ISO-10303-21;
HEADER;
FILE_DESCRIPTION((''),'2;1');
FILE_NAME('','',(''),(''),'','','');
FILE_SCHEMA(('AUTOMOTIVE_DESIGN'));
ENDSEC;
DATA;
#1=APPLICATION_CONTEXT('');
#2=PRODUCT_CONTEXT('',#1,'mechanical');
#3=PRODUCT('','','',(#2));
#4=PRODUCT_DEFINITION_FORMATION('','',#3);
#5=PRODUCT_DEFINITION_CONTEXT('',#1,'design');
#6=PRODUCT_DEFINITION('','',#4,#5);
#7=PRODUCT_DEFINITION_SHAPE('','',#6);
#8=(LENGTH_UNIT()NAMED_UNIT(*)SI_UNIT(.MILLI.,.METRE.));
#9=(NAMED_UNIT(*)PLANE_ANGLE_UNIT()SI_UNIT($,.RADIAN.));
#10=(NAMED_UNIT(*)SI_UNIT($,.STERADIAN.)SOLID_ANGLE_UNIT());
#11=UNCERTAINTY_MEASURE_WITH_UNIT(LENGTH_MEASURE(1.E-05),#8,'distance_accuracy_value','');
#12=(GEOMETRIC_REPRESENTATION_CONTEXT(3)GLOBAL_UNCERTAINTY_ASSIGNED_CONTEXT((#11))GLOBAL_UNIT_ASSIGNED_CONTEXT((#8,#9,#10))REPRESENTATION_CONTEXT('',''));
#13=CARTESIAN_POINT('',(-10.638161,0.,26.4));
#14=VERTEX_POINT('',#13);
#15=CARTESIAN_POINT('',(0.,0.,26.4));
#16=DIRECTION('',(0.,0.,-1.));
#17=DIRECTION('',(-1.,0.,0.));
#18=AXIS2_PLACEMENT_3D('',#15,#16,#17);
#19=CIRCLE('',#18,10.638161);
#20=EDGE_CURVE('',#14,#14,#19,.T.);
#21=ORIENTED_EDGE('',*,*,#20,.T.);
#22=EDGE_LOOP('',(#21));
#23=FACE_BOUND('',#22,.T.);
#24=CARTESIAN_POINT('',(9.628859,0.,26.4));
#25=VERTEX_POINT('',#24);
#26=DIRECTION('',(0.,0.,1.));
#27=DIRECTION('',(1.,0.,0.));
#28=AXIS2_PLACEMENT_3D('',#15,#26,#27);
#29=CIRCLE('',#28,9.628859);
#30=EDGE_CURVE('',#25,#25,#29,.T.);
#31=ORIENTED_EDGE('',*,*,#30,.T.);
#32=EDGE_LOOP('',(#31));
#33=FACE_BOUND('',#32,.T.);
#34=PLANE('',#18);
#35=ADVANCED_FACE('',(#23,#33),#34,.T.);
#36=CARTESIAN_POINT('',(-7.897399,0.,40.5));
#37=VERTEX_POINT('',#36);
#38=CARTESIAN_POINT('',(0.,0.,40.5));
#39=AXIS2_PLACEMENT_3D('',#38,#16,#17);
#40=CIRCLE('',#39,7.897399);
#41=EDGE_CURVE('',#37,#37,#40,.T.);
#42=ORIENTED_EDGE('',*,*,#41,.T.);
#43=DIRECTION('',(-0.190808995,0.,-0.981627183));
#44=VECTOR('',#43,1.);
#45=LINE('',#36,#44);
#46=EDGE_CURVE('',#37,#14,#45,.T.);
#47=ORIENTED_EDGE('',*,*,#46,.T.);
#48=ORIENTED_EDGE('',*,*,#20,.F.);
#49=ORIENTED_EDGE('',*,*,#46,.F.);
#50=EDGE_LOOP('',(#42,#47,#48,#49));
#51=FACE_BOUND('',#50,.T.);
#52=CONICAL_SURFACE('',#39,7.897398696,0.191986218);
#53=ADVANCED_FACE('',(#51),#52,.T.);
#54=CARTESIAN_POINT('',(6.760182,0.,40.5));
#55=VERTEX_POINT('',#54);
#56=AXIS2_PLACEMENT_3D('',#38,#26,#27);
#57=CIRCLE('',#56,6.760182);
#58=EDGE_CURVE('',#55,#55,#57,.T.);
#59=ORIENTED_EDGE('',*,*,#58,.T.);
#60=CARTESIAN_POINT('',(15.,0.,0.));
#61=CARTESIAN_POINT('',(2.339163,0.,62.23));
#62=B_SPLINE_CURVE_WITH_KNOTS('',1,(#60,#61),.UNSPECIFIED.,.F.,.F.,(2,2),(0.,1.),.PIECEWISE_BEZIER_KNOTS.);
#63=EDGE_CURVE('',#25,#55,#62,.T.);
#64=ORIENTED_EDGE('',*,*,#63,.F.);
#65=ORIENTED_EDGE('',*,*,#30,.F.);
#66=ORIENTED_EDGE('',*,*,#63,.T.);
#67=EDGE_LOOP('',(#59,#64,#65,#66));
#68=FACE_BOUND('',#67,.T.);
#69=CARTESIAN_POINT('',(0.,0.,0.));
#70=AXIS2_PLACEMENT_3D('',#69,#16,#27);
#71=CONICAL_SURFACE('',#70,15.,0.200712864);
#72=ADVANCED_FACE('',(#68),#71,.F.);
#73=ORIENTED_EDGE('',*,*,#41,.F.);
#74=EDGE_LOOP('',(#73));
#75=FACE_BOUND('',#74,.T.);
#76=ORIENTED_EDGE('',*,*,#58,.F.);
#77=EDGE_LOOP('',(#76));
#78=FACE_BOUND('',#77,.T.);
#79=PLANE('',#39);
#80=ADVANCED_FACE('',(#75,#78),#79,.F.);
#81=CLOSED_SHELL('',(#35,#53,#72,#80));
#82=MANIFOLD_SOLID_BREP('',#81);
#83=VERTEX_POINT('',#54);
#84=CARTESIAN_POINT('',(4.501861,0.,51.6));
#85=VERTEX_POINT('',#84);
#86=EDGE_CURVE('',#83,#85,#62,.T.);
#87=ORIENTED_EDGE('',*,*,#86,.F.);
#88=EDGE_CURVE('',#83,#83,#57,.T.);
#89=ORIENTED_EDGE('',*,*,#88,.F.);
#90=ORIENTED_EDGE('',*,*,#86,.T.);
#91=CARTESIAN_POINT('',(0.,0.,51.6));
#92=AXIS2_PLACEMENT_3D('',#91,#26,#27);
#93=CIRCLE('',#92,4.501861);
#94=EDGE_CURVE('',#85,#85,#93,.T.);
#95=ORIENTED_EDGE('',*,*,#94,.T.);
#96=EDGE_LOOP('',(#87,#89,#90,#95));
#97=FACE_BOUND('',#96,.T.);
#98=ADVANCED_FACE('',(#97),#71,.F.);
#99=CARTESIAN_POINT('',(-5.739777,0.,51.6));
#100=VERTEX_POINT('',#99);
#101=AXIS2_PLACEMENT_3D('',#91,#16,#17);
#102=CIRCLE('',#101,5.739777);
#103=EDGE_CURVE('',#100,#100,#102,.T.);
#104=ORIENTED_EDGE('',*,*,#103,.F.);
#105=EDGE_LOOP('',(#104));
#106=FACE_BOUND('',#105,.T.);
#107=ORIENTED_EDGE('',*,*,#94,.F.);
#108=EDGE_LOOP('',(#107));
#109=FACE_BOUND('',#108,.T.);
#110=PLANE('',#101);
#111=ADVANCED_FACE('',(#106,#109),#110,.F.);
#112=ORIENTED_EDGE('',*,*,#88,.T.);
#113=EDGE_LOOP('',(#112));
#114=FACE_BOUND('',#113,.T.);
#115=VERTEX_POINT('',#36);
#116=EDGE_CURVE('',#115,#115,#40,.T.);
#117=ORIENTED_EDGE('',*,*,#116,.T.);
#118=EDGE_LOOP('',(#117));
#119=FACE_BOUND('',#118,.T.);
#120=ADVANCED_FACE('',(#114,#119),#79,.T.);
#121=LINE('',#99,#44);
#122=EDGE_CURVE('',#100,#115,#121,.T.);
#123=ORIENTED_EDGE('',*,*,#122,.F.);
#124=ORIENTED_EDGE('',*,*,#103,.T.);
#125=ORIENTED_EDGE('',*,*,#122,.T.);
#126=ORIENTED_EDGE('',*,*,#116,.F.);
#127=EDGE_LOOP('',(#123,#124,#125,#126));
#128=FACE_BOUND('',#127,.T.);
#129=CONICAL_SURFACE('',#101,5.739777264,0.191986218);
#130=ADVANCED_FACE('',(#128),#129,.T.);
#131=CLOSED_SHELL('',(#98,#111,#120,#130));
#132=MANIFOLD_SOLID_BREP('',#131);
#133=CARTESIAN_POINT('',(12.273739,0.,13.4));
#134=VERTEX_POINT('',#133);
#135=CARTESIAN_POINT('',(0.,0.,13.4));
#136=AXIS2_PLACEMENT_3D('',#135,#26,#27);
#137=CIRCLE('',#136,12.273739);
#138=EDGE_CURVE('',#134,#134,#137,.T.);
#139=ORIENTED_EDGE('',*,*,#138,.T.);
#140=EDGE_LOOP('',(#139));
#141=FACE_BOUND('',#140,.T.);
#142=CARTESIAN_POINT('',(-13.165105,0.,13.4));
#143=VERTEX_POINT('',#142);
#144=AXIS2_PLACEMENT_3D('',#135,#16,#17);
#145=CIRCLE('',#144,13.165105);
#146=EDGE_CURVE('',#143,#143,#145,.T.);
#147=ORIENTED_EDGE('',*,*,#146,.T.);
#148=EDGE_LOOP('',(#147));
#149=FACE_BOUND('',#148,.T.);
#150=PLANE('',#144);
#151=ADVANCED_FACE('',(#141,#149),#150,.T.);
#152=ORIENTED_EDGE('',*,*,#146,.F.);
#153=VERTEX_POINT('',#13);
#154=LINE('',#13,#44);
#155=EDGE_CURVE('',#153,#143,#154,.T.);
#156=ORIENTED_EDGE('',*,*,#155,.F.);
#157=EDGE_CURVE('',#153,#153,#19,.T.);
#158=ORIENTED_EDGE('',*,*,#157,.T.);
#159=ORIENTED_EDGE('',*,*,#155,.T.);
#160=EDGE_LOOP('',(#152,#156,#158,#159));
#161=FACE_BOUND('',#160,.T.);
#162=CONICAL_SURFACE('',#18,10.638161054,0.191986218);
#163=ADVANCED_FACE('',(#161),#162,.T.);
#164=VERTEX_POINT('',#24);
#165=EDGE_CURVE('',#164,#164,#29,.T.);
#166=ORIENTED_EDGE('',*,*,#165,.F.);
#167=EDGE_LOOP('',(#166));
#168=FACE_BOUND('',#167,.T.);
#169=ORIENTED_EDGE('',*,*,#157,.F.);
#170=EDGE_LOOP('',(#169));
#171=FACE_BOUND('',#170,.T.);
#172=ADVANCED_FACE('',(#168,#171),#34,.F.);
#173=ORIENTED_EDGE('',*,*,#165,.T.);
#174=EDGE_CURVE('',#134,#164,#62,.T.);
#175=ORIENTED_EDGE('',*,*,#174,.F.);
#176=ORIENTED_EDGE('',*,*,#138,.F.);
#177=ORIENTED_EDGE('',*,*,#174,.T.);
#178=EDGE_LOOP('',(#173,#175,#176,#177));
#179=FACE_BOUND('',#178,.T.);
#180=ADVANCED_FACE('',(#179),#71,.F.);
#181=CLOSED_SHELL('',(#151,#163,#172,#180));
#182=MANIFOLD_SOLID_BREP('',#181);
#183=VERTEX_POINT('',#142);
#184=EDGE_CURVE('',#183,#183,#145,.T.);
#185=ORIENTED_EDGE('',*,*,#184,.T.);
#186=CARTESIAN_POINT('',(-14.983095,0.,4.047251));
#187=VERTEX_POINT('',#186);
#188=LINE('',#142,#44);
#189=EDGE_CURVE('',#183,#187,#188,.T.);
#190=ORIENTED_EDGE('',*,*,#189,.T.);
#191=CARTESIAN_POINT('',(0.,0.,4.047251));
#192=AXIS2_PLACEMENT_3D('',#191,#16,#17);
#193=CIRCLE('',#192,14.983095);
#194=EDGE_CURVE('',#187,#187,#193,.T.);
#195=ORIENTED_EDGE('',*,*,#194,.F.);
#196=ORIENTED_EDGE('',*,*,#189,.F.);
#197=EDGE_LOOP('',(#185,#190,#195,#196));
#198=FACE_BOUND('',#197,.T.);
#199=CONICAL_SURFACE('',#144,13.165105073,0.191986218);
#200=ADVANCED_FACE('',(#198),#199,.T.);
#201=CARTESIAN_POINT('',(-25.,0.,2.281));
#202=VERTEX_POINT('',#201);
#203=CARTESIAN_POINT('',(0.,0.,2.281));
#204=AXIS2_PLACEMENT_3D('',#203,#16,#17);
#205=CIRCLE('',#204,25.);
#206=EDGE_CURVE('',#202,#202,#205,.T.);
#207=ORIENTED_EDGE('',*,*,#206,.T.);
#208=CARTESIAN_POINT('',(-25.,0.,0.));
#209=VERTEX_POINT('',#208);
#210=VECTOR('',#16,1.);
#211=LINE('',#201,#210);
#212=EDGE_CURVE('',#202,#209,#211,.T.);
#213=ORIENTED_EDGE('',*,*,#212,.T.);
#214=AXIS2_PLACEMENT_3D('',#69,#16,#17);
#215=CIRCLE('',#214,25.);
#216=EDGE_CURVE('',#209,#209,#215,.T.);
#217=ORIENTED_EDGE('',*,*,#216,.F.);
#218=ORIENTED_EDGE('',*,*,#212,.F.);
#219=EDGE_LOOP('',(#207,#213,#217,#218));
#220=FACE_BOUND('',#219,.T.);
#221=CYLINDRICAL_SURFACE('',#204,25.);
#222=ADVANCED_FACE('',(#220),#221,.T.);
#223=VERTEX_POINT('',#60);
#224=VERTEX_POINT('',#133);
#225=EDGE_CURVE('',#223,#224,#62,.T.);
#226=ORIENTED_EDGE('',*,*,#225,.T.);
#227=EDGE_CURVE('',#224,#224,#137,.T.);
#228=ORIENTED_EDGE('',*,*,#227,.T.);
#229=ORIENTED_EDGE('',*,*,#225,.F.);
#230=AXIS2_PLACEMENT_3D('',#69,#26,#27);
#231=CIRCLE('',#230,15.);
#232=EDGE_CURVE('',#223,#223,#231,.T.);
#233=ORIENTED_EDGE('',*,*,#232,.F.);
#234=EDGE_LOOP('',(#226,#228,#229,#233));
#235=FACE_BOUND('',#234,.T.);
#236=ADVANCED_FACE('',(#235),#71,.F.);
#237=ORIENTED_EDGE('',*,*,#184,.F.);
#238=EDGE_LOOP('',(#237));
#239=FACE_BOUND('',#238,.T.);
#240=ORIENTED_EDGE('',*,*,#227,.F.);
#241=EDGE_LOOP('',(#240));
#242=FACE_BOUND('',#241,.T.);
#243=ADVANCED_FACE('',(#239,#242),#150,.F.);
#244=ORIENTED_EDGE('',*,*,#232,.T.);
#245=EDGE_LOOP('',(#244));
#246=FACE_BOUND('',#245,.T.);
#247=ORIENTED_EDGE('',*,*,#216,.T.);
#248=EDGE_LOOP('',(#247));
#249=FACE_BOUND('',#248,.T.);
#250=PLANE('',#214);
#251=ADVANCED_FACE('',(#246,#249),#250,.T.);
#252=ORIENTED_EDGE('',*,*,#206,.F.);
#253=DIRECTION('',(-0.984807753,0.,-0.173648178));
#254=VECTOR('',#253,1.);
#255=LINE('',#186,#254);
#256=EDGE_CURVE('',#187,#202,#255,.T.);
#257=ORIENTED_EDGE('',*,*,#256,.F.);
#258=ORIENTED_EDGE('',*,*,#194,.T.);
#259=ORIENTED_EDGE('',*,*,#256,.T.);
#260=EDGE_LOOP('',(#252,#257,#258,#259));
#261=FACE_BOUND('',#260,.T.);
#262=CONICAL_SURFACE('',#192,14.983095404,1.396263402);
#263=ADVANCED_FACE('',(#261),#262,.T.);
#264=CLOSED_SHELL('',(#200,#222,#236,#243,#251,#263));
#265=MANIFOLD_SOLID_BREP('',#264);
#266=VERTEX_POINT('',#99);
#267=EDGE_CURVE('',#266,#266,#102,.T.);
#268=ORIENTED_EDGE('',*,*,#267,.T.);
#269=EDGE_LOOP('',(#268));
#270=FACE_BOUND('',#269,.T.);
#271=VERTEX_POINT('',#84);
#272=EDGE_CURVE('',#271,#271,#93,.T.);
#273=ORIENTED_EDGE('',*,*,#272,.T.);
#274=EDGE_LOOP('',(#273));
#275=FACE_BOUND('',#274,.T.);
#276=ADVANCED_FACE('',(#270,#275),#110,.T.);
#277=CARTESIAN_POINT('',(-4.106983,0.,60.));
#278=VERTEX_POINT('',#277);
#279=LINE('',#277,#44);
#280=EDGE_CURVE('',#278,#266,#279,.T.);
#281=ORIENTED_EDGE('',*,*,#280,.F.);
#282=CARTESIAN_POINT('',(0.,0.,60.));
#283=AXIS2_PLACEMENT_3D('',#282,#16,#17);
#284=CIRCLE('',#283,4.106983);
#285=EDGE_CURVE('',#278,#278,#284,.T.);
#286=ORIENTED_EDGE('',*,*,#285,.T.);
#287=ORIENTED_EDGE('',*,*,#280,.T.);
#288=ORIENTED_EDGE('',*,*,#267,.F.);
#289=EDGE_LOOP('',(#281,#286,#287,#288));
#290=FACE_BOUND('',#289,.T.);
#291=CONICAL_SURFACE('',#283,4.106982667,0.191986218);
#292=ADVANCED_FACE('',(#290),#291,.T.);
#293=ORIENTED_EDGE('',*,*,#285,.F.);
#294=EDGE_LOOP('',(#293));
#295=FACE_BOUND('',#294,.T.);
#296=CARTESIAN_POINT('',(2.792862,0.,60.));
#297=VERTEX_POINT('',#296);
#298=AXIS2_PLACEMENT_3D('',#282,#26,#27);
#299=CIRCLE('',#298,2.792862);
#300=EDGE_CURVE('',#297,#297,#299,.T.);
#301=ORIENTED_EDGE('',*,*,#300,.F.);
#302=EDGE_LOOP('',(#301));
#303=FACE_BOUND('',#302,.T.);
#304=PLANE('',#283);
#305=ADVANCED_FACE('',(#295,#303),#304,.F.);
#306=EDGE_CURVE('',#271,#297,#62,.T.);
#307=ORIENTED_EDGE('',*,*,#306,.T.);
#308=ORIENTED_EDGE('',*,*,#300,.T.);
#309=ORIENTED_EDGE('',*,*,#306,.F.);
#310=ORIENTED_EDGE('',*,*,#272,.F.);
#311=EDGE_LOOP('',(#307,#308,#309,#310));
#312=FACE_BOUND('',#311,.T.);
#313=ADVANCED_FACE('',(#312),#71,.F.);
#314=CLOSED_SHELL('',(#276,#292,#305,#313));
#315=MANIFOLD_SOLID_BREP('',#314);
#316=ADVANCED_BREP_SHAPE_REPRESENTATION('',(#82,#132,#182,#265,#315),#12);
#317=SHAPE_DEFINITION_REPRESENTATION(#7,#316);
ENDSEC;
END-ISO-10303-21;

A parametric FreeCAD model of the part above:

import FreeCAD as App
import Part
import Sketcher
from FreeCAD import Vector
Q = App.Units.Quantity

doc = App.newDocument("Part")
body = doc.addObject("PartDesign::Body", "Body")

# Sketch on XZ plane
sketch1 = body.newObject("Sketcher::SketchObject", "Sketch")
sketch1.AttachmentSupport = (doc.getObject("XZ_Plane"), [""])
sketch1.MapMode = "FlatFace"
sketch1.addGeometry([
    Part.LineSegment(Vector(-5.7, 51.6, 0), Vector(0, 51.6, 0)),
    Part.LineSegment(Vector(0, 51.6, 0), Vector(0, 60, 0)),
    Part.LineSegment(Vector(0, 60, 0), Vector(-4.1, 60, 0)),
    Part.LineSegment(Vector(-4.1, 60, 0), Vector(-5.7, 51.6, 0)),
], False)
sketch1.addConstraint([
    Sketcher.Constraint("Coincident", 0, 2, 1, 1),
    Sketcher.Constraint("Coincident", 1, 2, 2, 1),
    Sketcher.Constraint("Coincident", 2, 2, 3, 1),
    Sketcher.Constraint("Coincident", 3, 2, 0, 1),
    Sketcher.Constraint("Horizontal", 0),
    Sketcher.Constraint("Vertical", 1),
    Sketcher.Constraint("Horizontal", 2),
    Sketcher.Constraint("PointOnObject", 0, 2, -2),
    Sketcher.Constraint("Angle", 3, Q("-101 deg")),
    Sketcher.Constraint("DistanceY", 1, 1, 1, 2, 8.4),
    Sketcher.Constraint("DistanceY", -1, 1, 1, 2, 60.0),
    Sketcher.Constraint("DistanceX", 0, 1, 0, 2, 5.739777),
])
revolution = body.newObject("PartDesign::Revolution", "Revolution")
revolution.Profile = sketch1
revolution.ReferenceAxis = (sketch1, ["V_Axis"])
revolution.Angle = 360
body2 = doc.addObject("PartDesign::Body", "Body001")

# Sketch on XZ plane
sketch2 = body2.newObject("Sketcher::SketchObject", "Sketch001")
sketch2.AttachmentSupport = (doc.getObject("XZ_Plane001"), [""])
sketch2.MapMode = "FlatFace"
sketch2.addGeometry([
    Part.LineSegment(Vector(-8, 40, 0), Vector(0, 40, 0)),
    Part.LineSegment(Vector(0, 40, 0), Vector(0, 52, 0)),
    Part.LineSegment(Vector(0, 52, 0), Vector(-6, 52, 0)),
    Part.LineSegment(Vector(-6, 52, 0), Vector(-8, 40, 0)),
], False)
sketch2.addConstraint([
    Sketcher.Constraint("Coincident", 0, 2, 1, 1),
    Sketcher.Constraint("Coincident", 1, 2, 2, 1),
    Sketcher.Constraint("Coincident", 2, 2, 3, 1),
    Sketcher.Constraint("Coincident", 3, 2, 0, 1),
    Sketcher.Constraint("Horizontal", 0),
    Sketcher.Constraint("Vertical", 1),
    Sketcher.Constraint("Horizontal", 2),
    Sketcher.Constraint("PointOnObject", 0, 2, -2),
    Sketcher.Constraint("Angle", 3, Q("-101 deg")),
    Sketcher.Constraint("DistanceY", 1, 1, 1, 2, 11.1),
    Sketcher.Constraint("DistanceY", -1, 1, 0, 2, 40.5),
    Sketcher.Constraint("DistanceX", 0, 1, 0, 2, 7.897399),
])
revolution2 = body2.newObject("PartDesign::Revolution", "Revolution001")
revolution2.Profile = sketch2
revolution2.ReferenceAxis = (sketch2, ["V_Axis"])
revolution2.Angle = 360
body3 = doc.addObject("PartDesign::Body", "Body002")

# Sketch on XZ plane
sketch3 = body3.newObject("Sketcher::SketchObject", "Sketch002")
sketch3.AttachmentSupport = (doc.getObject("XZ_Plane002"), [""])
sketch3.MapMode = "FlatFace"
sketch3.addGeometry([
    Part.LineSegment(Vector(-11, 26, 0), Vector(0, 26, 0)),
    Part.LineSegment(Vector(0, 26, 0), Vector(0, 40, 0)),
    Part.LineSegment(Vector(0, 40, 0), Vector(-8, 40, 0)),
    Part.LineSegment(Vector(-8, 40, 0), Vector(-11, 26, 0)),
], False)
sketch3.addConstraint([
    Sketcher.Constraint("Coincident", 0, 2, 1, 1),
    Sketcher.Constraint("Coincident", 1, 2, 2, 1),
    Sketcher.Constraint("Coincident", 2, 2, 3, 1),
    Sketcher.Constraint("Coincident", 3, 2, 0, 1),
    Sketcher.Constraint("Horizontal", 0),
    Sketcher.Constraint("Vertical", 1),
    Sketcher.Constraint("Horizontal", 2),
    Sketcher.Constraint("PointOnObject", 0, 2, -2),
    Sketcher.Constraint("Angle", 3, Q("-101 deg")),
    Sketcher.Constraint("DistanceY", 1, 1, 1, 2, 14.1),
    Sketcher.Constraint("DistanceY", -1, 1, 0, 2, 26.4),
    Sketcher.Constraint("DistanceX", 2, 2, 2, 1, 7.897399),
])
revolution3 = body3.newObject("PartDesign::Revolution", "Revolution002")
revolution3.Profile = sketch3
revolution3.ReferenceAxis = (sketch3, ["V_Axis"])
revolution3.Angle = 360
body4 = doc.addObject("PartDesign::Body", "Body003")

# Sketch on XZ plane
sketch4 = body4.newObject("Sketcher::SketchObject", "Sketch003")
sketch4.AttachmentSupport = (doc.getObject("XZ_Plane003"), [""])
sketch4.MapMode = "FlatFace"
sketch4.addGeometry([
    Part.LineSegment(Vector(-13, 13, 0), Vector(0, 13, 0)),
    Part.LineSegment(Vector(0, 13, 0), Vector(0, 26, 0)),
    Part.LineSegment(Vector(0, 26, 0), Vector(-11, 26, 0)),
    Part.LineSegment(Vector(-11, 26, 0), Vector(-13, 13, 0)),
], False)
sketch4.addConstraint([
    Sketcher.Constraint("Coincident", 0, 2, 1, 1),
    Sketcher.Constraint("Coincident", 1, 2, 2, 1),
    Sketcher.Constraint("Coincident", 2, 2, 3, 1),
    Sketcher.Constraint("Coincident", 3, 2, 0, 1),
    Sketcher.Constraint("Horizontal", 0),
    Sketcher.Constraint("Vertical", 1),
    Sketcher.Constraint("Horizontal", 2),
    Sketcher.Constraint("PointOnObject", 0, 2, -2),
    Sketcher.Constraint("DistanceY", 1, 1, 1, 2, 13.0),
    Sketcher.Constraint("Angle", 3, Q("-101 deg")),
    Sketcher.Constraint("DistanceY", -1, 1, 0, 2, 13.4),
    Sketcher.Constraint("DistanceX", 2, 2, 2, 1, 10.638161),
])
revolution4 = body4.newObject("PartDesign::Revolution", "Revolution003")
revolution4.Profile = sketch4
revolution4.ReferenceAxis = (sketch4, ["V_Axis"])
revolution4.Angle = 360
body5 = doc.addObject("PartDesign::Body", "Body004")

# Sketch on XZ plane
sketch5 = body5.newObject("Sketcher::SketchObject", "Sketch004")
sketch5.AttachmentSupport = (doc.getObject("XZ_Plane004"), [""])
sketch5.MapMode = "FlatFace"
sketch5.addGeometry([
    Part.LineSegment(Vector(-25, 2.3, 0), Vector(-25, 0, 0)),  # 0
    Part.LineSegment(Vector(-25, 0, 0), Vector(0, 0, 0)),  # 1
    Part.LineSegment(Vector(0, 0, 0), Vector(0, 13.4, 0)),  # 2
    Part.LineSegment(Vector(0, 13.4, 0), Vector(-13.2, 13.4, 0)),  # 3
    Part.LineSegment(Vector(-13.2, 13.4, 0), Vector(-15, 4, 0)),  # 4
    Part.LineSegment(Vector(-15, 4, 0), Vector(-25, 2.3, 0)),  # 5
], False)
sketch5.addConstraint([
    Sketcher.Constraint("Coincident", 0, 2, 1, 1),
    Sketcher.Constraint("Coincident", 1, 2, 2, 1),
    Sketcher.Constraint("Coincident", 2, 2, 3, 1),
    Sketcher.Constraint("Coincident", 3, 2, 4, 1),
    Sketcher.Constraint("Coincident", 4, 2, 5, 1),
    Sketcher.Constraint("Coincident", 5, 2, 0, 1),
    Sketcher.Constraint("Vertical", 0),
    Sketcher.Constraint("Horizontal", 1),
    Sketcher.Constraint("Vertical", 2),
    Sketcher.Constraint("Horizontal", 3),
    Sketcher.Constraint("Coincident", 1, 2, -1, 1),
    Sketcher.Constraint("DistanceX", 1, 1, 1, 2, 25.0),
    Sketcher.Constraint("Angle", 4, Q("-101 deg")),
    Sketcher.Constraint("Angle", 5, Q("-170 deg")),
    Sketcher.Constraint("DistanceY", 2, 1, 2, 2, 13.4),
    Sketcher.Constraint("DistanceY", 0, 2, 0, 1, 2.281),
    Sketcher.Constraint("Distance", 5, 10.171431),
])
revolution5 = body5.newObject("PartDesign::Revolution", "Revolution004")
revolution5.Profile = sketch5
revolution5.ReferenceAxis = (sketch5, ["V_Axis"])
revolution5.Angle = 360
body6 = doc.addObject("PartDesign::Body", "Body005")

# Sketch on XY plane
sketch6 = body6.newObject("Sketcher::SketchObject", "Sketch005")
sketch6.AttachmentSupport = (doc.getObject("XY_Plane005"), [""])
sketch6.MapMode = "FlatFace"
sketch6.addGeometry(Part.Circle(Vector(0, 0, 0), Vector(0, 0, 1), 15), False)
sketch6.addConstraint([
    Sketcher.Constraint("Coincident", 0, 3, -1, 1),
    Sketcher.Constraint("Diameter", 0, 30.0),
])
pad1 = body6.newObject("PartDesign::Pad", "Pad")
pad1.Profile = sketch6
pad1.Length = 62.23
pad1.TaperAngle = -11.5
doc.recompute()

body7 = doc.addObject("PartDesign::Body", "Body006")
body7.BaseFeature = body6
boolean = body.newObject("PartDesign::Boolean", "Boolean")
boolean.Type = "Cut"
boolean.addObjects([body7])
doc.recompute()

body8 = doc.addObject("PartDesign::Body", "Body007")
body8.BaseFeature = body6
boolean2 = body2.newObject("PartDesign::Boolean", "Boolean001")
boolean2.Type = "Cut"
boolean2.addObjects([body8])
doc.recompute()

body9 = doc.addObject("PartDesign::Body", "Body008")
body9.BaseFeature = body6
boolean3 = body3.newObject("PartDesign::Boolean", "Boolean002")
boolean3.Type = "Cut"
boolean3.addObjects([body9])
doc.recompute()

body10 = doc.addObject("PartDesign::Body", "Body009")
body10.BaseFeature = body6
boolean4 = body4.newObject("PartDesign::Boolean", "Boolean003")
boolean4.Type = "Cut"
boolean4.addObjects([body10])
doc.recompute()

boolean5 = body5.newObject("PartDesign::Boolean", "Boolean004")
boolean5.Type = "Cut"
boolean5.addObjects([body6])

doc.recompute()
